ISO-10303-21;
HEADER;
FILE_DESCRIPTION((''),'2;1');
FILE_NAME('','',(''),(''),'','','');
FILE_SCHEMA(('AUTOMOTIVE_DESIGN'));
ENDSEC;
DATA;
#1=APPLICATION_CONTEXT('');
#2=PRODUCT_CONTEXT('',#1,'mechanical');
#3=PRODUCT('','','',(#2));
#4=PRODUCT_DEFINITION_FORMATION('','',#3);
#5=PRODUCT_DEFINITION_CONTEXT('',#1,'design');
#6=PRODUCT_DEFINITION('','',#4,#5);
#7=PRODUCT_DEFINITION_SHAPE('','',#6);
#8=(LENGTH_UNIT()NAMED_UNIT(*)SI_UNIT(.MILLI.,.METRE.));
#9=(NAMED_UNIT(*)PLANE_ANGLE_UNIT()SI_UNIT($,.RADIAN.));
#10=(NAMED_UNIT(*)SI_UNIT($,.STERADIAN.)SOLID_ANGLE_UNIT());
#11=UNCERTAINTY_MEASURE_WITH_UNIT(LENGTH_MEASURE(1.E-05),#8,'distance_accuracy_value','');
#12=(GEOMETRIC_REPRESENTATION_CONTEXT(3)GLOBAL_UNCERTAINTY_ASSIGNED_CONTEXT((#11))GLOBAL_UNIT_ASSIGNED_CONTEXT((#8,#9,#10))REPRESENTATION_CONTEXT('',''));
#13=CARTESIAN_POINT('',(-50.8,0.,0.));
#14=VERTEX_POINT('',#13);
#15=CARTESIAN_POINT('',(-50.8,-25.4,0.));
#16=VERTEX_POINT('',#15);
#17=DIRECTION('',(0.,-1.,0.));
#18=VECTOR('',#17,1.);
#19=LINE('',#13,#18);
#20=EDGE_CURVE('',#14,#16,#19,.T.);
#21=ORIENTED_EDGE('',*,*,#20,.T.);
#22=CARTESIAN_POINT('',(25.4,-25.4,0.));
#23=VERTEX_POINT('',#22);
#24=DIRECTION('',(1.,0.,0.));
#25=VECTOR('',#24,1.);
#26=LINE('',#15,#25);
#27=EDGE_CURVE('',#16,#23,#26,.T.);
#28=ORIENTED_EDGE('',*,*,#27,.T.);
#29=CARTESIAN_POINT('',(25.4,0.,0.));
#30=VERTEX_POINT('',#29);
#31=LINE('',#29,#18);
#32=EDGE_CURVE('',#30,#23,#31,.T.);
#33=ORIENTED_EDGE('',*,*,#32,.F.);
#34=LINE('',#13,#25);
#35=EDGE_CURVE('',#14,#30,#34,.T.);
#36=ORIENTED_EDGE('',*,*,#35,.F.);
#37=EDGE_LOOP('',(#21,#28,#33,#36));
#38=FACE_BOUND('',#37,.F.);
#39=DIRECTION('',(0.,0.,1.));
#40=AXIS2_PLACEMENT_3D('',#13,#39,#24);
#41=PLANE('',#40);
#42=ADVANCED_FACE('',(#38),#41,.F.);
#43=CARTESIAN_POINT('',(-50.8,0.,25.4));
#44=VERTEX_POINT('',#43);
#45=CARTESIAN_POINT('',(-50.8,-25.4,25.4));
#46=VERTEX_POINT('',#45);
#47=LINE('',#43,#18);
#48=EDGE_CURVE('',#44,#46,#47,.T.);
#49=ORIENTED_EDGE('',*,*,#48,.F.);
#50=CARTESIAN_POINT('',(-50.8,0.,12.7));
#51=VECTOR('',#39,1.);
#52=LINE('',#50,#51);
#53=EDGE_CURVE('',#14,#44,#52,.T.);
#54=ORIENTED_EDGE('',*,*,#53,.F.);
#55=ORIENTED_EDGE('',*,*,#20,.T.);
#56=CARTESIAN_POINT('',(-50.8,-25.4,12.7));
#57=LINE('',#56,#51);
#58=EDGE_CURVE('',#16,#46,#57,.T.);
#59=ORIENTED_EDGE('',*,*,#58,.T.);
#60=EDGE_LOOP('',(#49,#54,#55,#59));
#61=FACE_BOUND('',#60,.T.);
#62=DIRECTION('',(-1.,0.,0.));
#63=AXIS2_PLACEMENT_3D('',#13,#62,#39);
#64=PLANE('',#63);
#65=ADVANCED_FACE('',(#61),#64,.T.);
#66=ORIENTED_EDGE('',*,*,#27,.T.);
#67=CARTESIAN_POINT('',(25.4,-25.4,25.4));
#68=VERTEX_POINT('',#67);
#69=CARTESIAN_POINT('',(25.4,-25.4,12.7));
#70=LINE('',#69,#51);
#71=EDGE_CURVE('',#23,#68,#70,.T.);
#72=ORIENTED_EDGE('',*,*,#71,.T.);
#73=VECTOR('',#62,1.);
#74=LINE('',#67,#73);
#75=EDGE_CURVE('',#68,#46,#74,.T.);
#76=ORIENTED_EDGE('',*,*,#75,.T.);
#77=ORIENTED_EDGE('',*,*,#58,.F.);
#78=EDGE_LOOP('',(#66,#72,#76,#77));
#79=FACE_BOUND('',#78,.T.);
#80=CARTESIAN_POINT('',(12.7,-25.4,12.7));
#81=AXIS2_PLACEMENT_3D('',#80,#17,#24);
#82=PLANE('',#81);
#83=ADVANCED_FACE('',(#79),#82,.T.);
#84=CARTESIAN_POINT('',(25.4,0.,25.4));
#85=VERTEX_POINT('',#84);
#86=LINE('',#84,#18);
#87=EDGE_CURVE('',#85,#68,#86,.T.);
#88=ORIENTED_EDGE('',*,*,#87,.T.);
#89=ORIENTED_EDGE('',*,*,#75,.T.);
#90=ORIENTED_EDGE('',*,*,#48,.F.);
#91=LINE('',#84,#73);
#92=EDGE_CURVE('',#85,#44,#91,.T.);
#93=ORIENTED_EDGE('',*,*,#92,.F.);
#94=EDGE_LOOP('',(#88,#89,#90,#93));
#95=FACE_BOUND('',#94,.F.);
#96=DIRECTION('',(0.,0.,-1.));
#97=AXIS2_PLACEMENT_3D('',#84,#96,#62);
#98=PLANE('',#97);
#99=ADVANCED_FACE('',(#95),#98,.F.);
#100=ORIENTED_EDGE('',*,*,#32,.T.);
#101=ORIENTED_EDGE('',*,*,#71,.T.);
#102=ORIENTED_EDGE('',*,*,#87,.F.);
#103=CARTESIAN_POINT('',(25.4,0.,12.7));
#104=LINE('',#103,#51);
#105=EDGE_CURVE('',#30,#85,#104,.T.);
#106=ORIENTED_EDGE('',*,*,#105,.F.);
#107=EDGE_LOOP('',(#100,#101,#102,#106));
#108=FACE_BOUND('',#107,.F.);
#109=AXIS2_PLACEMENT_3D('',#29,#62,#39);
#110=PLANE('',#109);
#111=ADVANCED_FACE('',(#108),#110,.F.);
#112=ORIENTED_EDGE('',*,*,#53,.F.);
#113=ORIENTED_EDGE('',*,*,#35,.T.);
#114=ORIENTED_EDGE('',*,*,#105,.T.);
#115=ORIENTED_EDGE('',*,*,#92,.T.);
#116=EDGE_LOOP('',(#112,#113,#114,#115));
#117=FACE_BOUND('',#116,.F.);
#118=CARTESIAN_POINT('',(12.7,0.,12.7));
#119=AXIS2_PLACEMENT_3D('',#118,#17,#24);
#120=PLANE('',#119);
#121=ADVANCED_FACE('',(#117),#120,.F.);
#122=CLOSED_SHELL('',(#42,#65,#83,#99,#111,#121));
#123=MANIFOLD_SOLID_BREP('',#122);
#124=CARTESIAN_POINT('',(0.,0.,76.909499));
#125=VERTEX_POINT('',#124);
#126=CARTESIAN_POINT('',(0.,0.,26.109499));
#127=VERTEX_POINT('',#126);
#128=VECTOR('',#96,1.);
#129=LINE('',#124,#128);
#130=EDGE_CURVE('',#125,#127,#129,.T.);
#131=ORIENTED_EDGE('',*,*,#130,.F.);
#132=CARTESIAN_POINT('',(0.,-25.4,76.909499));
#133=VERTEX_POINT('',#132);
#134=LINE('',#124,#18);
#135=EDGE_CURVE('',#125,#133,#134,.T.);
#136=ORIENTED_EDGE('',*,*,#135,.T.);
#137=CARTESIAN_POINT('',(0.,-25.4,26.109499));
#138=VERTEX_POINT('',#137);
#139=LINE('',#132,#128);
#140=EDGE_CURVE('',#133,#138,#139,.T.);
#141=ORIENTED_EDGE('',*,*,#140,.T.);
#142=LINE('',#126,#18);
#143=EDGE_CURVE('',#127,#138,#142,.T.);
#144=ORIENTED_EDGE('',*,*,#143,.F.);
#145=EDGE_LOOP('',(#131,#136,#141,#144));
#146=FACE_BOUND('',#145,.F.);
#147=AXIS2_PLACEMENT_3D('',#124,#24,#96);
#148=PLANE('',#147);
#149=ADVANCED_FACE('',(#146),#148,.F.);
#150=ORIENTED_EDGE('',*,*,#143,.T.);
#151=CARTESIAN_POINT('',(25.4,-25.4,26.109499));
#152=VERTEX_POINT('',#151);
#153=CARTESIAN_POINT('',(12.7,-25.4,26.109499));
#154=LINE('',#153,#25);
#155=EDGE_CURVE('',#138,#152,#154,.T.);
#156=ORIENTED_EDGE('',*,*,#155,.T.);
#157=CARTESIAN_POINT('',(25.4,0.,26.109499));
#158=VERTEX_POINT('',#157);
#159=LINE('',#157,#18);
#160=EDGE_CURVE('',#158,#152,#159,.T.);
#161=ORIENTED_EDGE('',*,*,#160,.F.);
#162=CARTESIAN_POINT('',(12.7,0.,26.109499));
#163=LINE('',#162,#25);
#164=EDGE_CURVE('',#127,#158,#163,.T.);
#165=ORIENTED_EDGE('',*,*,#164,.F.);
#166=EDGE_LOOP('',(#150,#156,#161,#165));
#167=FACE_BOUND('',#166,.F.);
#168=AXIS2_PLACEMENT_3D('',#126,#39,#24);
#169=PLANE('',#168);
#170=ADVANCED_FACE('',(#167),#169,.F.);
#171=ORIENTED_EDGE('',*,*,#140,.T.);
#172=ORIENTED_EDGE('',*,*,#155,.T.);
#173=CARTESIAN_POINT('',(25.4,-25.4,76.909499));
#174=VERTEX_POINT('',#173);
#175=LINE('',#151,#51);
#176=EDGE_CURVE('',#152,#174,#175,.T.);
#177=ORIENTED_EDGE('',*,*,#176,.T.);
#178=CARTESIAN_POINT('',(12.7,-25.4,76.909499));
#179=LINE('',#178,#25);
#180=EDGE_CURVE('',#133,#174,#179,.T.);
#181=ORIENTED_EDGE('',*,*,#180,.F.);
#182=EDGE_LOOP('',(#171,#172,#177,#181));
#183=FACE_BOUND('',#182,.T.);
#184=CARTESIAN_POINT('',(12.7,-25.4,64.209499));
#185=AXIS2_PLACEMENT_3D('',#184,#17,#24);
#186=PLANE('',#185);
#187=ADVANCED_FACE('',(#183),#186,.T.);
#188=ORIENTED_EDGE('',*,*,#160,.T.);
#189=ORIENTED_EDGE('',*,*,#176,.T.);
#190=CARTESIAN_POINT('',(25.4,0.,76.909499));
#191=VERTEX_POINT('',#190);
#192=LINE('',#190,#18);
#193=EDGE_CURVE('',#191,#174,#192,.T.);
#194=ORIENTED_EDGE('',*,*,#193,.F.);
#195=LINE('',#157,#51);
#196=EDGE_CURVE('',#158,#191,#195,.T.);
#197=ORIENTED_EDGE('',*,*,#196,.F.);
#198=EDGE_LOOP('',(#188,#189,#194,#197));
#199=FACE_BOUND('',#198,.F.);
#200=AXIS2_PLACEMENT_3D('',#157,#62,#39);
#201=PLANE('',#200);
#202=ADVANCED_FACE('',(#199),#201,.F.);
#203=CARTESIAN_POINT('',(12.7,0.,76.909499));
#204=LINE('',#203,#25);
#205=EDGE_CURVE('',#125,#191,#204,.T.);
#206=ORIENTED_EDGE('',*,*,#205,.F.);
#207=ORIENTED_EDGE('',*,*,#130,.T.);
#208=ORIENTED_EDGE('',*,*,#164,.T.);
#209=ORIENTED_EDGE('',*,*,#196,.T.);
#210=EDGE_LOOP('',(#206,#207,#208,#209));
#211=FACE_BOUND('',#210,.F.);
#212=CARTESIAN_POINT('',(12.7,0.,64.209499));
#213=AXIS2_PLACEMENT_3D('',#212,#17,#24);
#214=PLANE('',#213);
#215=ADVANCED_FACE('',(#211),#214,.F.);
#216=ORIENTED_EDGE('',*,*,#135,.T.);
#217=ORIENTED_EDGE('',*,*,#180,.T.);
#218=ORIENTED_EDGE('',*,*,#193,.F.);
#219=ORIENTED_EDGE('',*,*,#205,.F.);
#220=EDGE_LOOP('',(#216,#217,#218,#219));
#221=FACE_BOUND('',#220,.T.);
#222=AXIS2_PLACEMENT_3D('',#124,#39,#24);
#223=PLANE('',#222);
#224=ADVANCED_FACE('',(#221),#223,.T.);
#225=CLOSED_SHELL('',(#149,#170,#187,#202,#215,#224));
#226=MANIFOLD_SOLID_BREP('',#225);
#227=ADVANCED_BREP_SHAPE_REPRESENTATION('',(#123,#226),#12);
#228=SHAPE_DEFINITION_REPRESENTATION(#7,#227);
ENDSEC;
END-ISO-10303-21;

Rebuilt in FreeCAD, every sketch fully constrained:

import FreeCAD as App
import Part
import Sketcher

V = App.Vector
Q = App.Units.Quantity

doc = App.newDocument("Part")
params = doc.addObject("Spreadsheet::Sheet", "Params")
for row, (alias, value) in enumerate([
    ("sketch1_width", "1 in"),
    ("sketch1_width2", "3 in"),
    ("sketch1_height", "2 in"),
    ("pad1_length", "1 in"),
], start=1):
    params.set(f"A{row}", alias)
    params.set(f"B{row}", "=" + value)
    params.setAlias(f"B{row}", alias)

body = doc.addObject("PartDesign::Body", "Body")
body.AllowCompound = True

sketch1 = body.newObject("Sketcher::SketchObject", "Sketch")
sketch1.AttachmentSupport = (doc.getObject("XZ_Plane"), [""])
sketch1.MapMode = "FlatFace"
sketch1.addGeometry([
    Part.LineSegment(V(0, 76.909499, 0), V(0, 26.109499, 0)),
    Part.LineSegment(V(0, 26.109499, 0), V(25.4, 26.109499, 0)),
    Part.LineSegment(V(25.4, 26.109499, 0), V(25.4, 76.909499, 0)),
    Part.LineSegment(V(25.4, 76.909499, 0), V(0, 76.909499, 0)),
    Part.LineSegment(V(25.4, 0, 0), V(25.4, 25.4, 0)),
    Part.LineSegment(V(25.4, 25.4, 0), V(-50.8, 25.4, 0)),
    Part.LineSegment(V(-50.8, 25.4, 0), V(-50.8, 0, 0)),
    Part.LineSegment(V(-50.8, 0, 0), V(25.4, 0, 0)),
], False)
sketch1.addConstraint([
    Sketcher.Constraint("Coincident", 0, 2, 1, 1),
    Sketcher.Constraint("Coincident", 1, 2, 2, 1),
    Sketcher.Constraint("Coincident", 2, 2, 3, 1),
    Sketcher.Constraint("Coincident", 3, 2, 0, 1),
    Sketcher.Constraint("Coincident", 4, 2, 5, 1),
    Sketcher.Constraint("Coincident", 5, 2, 6, 1),
    Sketcher.Constraint("Coincident", 6, 2, 7, 1),
    Sketcher.Constraint("Coincident", 7, 2, 4, 1),
    Sketcher.Constraint("Vertical", 0),
    Sketcher.Constraint("Horizontal", 1),
    Sketcher.Constraint("Vertical", 2),
    Sketcher.Constraint("Horizontal", 3),
    Sketcher.Constraint("Vertical", 4),
    Sketcher.Constraint("Horizontal", 5),
    Sketcher.Constraint("Vertical", 6),
    Sketcher.Constraint("Horizontal", 7),
    Sketcher.Constraint("PointOnObject", 0, 2, -2),
    Sketcher.Constraint("PointOnObject", 6, 2, -1),
    Sketcher.Constraint("Vertical", 2, 2, 4, 2),
    Sketcher.Constraint("Equal", 3, 4),
    Sketcher.Constraint("DistanceX", 1, 1, 1, 2, Q("1 in")),
    Sketcher.Constraint("DistanceX", 5, 2, 5, 1, Q("3 in")),
    Sketcher.Constraint("DistanceY", 0, 2, 0, 1, Q("2 in")),
    Sketcher.Constraint("DistanceY", -1, 1, 0, 2, 26.109499),
])
sketch1.setExpression("Constraints[20]", "Params.sketch1_width")
sketch1.setExpression("Constraints[21]", "Params.sketch1_width2")
sketch1.setExpression("Constraints[22]", "Params.sketch1_height")
pad1 = body.newObject("PartDesign::Pad", "Pad")
pad1.Profile = sketch1
pad1.setExpression("Length", "Params.pad1_length")

doc.recompute()
